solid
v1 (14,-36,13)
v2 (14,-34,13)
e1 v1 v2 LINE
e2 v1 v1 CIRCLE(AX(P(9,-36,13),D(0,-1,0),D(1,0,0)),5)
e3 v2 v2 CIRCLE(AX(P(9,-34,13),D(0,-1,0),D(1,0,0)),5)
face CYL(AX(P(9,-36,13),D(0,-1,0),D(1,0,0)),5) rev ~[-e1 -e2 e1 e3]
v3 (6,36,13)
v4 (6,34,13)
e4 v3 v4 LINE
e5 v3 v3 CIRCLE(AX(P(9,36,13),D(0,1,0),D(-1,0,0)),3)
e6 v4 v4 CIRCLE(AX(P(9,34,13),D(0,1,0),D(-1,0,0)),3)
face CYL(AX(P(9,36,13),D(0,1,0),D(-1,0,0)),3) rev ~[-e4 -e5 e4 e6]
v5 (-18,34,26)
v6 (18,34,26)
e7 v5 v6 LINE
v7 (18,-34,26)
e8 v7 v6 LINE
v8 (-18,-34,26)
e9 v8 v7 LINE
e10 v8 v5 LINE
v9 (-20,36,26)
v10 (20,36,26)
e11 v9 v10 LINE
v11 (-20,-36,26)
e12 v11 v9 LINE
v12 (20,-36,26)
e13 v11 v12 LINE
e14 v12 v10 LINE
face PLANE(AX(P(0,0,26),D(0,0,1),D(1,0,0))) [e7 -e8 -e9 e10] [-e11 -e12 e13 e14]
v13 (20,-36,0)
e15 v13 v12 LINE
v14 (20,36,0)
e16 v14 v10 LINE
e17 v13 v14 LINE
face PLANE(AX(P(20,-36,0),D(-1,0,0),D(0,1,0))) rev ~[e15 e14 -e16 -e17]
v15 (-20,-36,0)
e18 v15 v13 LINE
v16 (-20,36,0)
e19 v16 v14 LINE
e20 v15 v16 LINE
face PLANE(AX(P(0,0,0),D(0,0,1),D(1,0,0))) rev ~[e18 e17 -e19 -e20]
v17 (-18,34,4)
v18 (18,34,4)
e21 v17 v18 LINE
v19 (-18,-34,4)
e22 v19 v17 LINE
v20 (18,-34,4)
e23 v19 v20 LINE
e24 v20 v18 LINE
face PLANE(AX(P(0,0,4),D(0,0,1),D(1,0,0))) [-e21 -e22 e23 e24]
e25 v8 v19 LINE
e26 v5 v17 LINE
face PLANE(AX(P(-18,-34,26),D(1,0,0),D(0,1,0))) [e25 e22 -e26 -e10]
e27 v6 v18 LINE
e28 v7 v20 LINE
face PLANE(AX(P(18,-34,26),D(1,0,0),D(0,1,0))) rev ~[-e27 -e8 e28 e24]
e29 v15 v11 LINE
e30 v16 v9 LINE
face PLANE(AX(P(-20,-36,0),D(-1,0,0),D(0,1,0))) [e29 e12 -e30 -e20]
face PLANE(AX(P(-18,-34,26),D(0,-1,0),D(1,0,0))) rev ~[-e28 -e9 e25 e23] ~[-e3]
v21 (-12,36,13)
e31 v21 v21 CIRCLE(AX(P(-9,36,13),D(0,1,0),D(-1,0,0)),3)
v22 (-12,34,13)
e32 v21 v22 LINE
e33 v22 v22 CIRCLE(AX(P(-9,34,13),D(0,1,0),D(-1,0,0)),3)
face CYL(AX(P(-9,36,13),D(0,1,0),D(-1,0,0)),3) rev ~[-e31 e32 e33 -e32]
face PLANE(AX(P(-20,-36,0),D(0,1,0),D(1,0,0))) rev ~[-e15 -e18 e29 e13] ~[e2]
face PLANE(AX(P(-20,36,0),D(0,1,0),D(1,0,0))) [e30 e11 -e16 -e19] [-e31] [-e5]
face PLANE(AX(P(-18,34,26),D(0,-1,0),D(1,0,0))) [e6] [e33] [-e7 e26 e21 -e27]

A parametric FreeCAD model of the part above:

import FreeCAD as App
import Part
import Sketcher
from FreeCAD import Vector

doc = App.newDocument("Part")
body = doc.addObject("PartDesign::Body", "Body")

# Sketch on XY plane
sketch1 = body.newObject("Sketcher::SketchObject", "Sketch")
sketch1.AttachmentSupport = (doc.getObject("XY_Plane"), [""])
sketch1.MapMode = "FlatFace"
sketch1.addGeometry(Part.LineSegment(Vector(-20, 36, 0), Vector(-20, -36, 0)), False)
sketch1.addGeometry(Part.LineSegment(Vector(-20, -36, 0), Vector(20, -36, 0)), False)
sketch1.addGeometry(Part.LineSegment(Vector(20, -36, 0), Vector(20, 36, 0)), False)
sketch1.addGeometry(Part.LineSegment(Vector(20, 36, 0), Vector(-20, 36, 0)), False)
sketch1.addConstraint(Sketcher.Constraint("Coincident", 0, 2, 1, 1))
sketch1.addConstraint(Sketcher.Constraint("Coincident", 1, 2, 2, 1))
sketch1.addConstraint(Sketcher.Constraint("Coincident", 2, 2, 3, 1))
sketch1.addConstraint(Sketcher.Constraint("Coincident", 3, 2, 0, 1))
sketch1.addConstraint(Sketcher.Constraint("Vertical", 0))
sketch1.addConstraint(Sketcher.Constraint("Horizontal", 1))
sketch1.addConstraint(Sketcher.Constraint("Vertical", 2))
sketch1.addConstraint(Sketcher.Constraint("Horizontal", 3))
sketch1.addConstraint(Sketcher.Constraint("Symmetric", 0, 2, 2, 2, -1, 1))
sketch1.addConstraint(Sketcher.Constraint("DistanceX", 1, 1, 1, 2, 40.0))
sketch1.addConstraint(Sketcher.Constraint("DistanceY", 0, 2, 0, 1, 72.0))
pad1 = body.newObject("PartDesign::Pad", "Pad")
pad1.Profile = sketch1
pad1.Length = 26

# Sketch on XY plane
sketch2 = body.newObject("Sketcher::SketchObject", "Sketch001")
sketch2.AttachmentSupport = (doc.getObject("XY_Plane"), [""])
sketch2.MapMode = "FlatFace"
sketch2.AttachmentOffset = App.Placement(Vector(0, 0, 26), App.Rotation())
sketch2.addGeometry(Part.LineSegment(Vector(-18, 34, 0), Vector(-18, -34, 0)), False)
sketch2.addGeometry(Part.LineSegment(Vector(-18, -34, 0), Vector(18, -34, 0)), False)
sketch2.addGeometry(Part.LineSegment(Vector(18, -34, 0), Vector(18, 34, 0)), False)
sketch2.addGeometry(Part.LineSegment(Vector(18, 34, 0), Vector(-18, 34, 0)), False)
sketch2.addConstraint(Sketcher.Constraint("Coincident", 0, 2, 1, 1))
sketch2.addConstraint(Sketcher.Constraint("Coincident", 1, 2, 2, 1))
sketch2.addConstraint(Sketcher.Constraint("Coincident", 2, 2, 3, 1))
sketch2.addConstraint(Sketcher.Constraint("Coincident", 3, 2, 0, 1))
sketch2.addConstraint(Sketcher.Constraint("Vertical", 0))
sketch2.addConstraint(Sketcher.Constraint("Horizontal", 1))
sketch2.addConstraint(Sketcher.Constraint("Vertical", 2))
sketch2.addConstraint(Sketcher.Constraint("Horizontal", 3))
sketch2.addConstraint(Sketcher.Constraint("Symmetric", 0, 2, 2, 2, -1, 1))
sketch2.addConstraint(Sketcher.Constraint("DistanceX", 1, 1, 1, 2, 36.0))
sketch2.addConstraint(Sketcher.Constraint("DistanceY", 0, 2, 0, 1, 68.0))
pocket1 = body.newObject("PartDesign::Pocket", "Pocket")
pocket1.Profile = sketch2
pocket1.Length = 22

# Sketch on XZ plane
sketch3 = body.newObject("Sketcher::SketchObject", "Sketch002")
sketch3.AttachmentSupport = (doc.getObject("XZ_Plane"), [""])
sketch3.MapMode = "FlatFace"
sketch3.AttachmentOffset = App.Placement(Vector(0, 0, 36), App.Rotation())
sketch3.addGeometry(Part.Circle(Vector(9, 13, 0), Vector(0, 0, 1), 5), False)
sketch3.addConstraint(Sketcher.Constraint("Diameter", 0, 10.0))
sketch3.addConstraint(Sketcher.Constraint("DistanceX", -1, 1, 0, 3, 9.0))
sketch3.addConstraint(Sketcher.Constraint("DistanceY", -1, 1, 0, 3, 13.0))
pocket2 = body.newObject("PartDesign::Pocket", "Pocket001")
pocket2.Profile = sketch3
pocket2.Length = 25

# Sketch on XZ plane
sketch4 = body.newObject("Sketcher::SketchObject", "Sketch003")
sketch4.AttachmentSupport = (doc.getObject("XZ_Plane"), [""])
sketch4.MapMode = "FlatFace"
sketch4.AttachmentOffset = App.Placement(Vector(0, 0, -36), App.Rotation())
sketch4.addGeometry(Part.Circle(Vector(9, 13, 0), Vector(0, 0, 1), 3), False)
sketch4.addGeometry(Part.Circle(Vector(-9, 13, 0), Vector(0, 0, 1), 3), False)
sketch4.addConstraint(Sketcher.Constraint("Equal", 0, 1))
sketch4.addConstraint(Sketcher.Constraint("Symmetric", 0, 3, 1, 3, -2))
sketch4.addConstraint(Sketcher.Constraint("Diameter", 0, 6.0))
sketch4.addConstraint(Sketcher.Constraint("DistanceX", -1, 1, 0, 3, 9.0))
sketch4.addConstraint(Sketcher.Constraint("DistanceY", -1, 1, 0, 3, 13.0))
pocket3 = body.newObject("PartDesign::Pocket", "Pocket002")
pocket3.Profile = sketch4
pocket3.Length = 25
pocket3.Reversed = True

doc.recompute()
